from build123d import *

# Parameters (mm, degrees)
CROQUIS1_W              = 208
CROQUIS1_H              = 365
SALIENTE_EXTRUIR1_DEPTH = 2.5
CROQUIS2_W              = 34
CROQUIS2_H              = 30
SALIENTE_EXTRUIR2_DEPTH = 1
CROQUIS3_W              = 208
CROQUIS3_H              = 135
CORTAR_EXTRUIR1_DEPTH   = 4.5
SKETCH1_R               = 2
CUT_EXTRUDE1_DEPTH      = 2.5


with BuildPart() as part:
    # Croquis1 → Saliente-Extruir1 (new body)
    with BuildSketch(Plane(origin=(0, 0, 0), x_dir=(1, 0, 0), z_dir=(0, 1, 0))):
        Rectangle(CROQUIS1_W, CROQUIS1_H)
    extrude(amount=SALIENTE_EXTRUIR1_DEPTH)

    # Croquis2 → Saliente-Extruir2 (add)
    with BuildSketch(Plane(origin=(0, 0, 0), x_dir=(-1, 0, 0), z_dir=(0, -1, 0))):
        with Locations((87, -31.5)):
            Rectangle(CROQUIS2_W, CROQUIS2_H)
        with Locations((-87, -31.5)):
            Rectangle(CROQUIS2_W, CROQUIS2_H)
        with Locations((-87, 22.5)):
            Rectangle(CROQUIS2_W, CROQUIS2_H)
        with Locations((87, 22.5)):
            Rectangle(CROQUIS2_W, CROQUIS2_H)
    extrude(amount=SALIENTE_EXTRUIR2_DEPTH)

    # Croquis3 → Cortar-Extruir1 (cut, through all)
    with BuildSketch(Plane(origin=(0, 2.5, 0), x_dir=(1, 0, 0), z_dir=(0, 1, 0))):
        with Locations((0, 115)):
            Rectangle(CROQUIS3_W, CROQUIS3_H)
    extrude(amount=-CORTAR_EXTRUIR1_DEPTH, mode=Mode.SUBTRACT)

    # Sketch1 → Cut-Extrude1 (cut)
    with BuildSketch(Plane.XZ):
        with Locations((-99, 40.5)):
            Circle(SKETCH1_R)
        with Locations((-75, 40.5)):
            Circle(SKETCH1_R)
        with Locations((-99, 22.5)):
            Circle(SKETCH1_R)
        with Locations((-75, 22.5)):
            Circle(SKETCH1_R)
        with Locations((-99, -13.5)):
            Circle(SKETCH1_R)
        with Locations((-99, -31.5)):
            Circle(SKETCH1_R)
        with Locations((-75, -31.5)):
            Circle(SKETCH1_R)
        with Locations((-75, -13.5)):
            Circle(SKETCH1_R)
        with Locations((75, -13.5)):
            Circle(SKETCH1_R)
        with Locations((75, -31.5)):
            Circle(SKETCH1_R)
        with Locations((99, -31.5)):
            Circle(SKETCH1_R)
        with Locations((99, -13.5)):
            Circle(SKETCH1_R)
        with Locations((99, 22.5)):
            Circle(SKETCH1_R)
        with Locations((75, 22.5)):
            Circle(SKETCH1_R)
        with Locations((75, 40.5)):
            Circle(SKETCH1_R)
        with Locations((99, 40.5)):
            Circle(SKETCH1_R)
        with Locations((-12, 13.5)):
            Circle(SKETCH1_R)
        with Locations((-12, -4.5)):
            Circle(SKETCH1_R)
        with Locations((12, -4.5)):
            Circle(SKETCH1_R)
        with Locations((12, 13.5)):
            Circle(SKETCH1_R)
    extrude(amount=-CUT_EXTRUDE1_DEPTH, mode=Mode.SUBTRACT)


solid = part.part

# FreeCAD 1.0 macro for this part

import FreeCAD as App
import Part
import Sketcher
from FreeCAD import Vector

doc = App.newDocument("Part")
body = doc.addObject("PartDesign::Body", "Body")

# Sketch on XZ plane
sketch1 = body.newObject("Sketcher::SketchObject", "Sketch")
sketch1.AttachmentSupport = (doc.getObject("XZ_Plane"), [""])
sketch1.MapMode = "FlatFace"
sketch1.addGeometry([
    Part.LineSegment(Vector(-104, -182, 0), Vector(-104, 182, 0)),
    Part.LineSegment(Vector(-104, 182, 0), Vector(104, 182, 0)),
    Part.LineSegment(Vector(104, 182, 0), Vector(104, -182, 0)),
    Part.LineSegment(Vector(104, -182, 0), Vector(-104, -182, 0)),
], False)
sketch1.addConstraint([
    Sketcher.Constraint("Coincident", 0, 2, 1, 1),
    Sketcher.Constraint("Coincident", 1, 2, 2, 1),
    Sketcher.Constraint("Coincident", 2, 2, 3, 1),
    Sketcher.Constraint("Coincident", 3, 2, 0, 1),
    Sketcher.Constraint("Vertical", 0),
    Sketcher.Constraint("Horizontal", 1),
    Sketcher.Constraint("Vertical", 2),
    Sketcher.Constraint("Horizontal", 3),
    Sketcher.Constraint("Symmetric", 0, 2, 2, 2, -1, 1),
    Sketcher.Constraint("DistanceX", 1, 1, 1, 2, 208.0),
    Sketcher.Constraint("DistanceY", 0, 1, 0, 2, 365.0),
])
pad1 = body.newObject("PartDesign::Pad", "Pad")
pad1.Profile = sketch1
pad1.Length = 2.5
pad1.Reversed = True

# Sketch on XZ plane
sketch2 = body.newObject("Sketcher::SketchObject", "Sketch001")
sketch2.AttachmentSupport = (doc.getObject("XZ_Plane"), [""])
sketch2.MapMode = "FlatFace"
sketch2.addGeometry([
    Part.LineSegment(Vector(-70, 16, 0), Vector(-70, 46, 0)),  # 0
    Part.LineSegment(Vector(-70, 46, 0), Vector(-104, 46, 0)),  # 1
    Part.LineSegment(Vector(-104, 46, 0), Vector(-104, 16, 0)),  # 2
    Part.LineSegment(Vector(-104, 16, 0), Vector(-70, 16, 0)),  # 3
    Part.LineSegment(Vector(104, 16, 0), Vector(104, 46, 0)),  # 4
    Part.LineSegment(Vector(104, 46, 0), Vector(70, 46, 0)),  # 5
    Part.LineSegment(Vector(70, 46, 0), Vector(70, 16, 0)),  # 6
    Part.LineSegment(Vector(70, 16, 0), Vector(104, 16, 0)),  # 7
    Part.LineSegment(Vector(104, -38, 0), Vector(104, -8, 0)),  # 8
    Part.LineSegment(Vector(104, -8, 0), Vector(70, -8, 0)),  # 9
    Part.LineSegment(Vector(70, -8, 0), Vector(70, -38, 0)),  # 10
    Part.LineSegment(Vector(70, -38, 0), Vector(104, -38, 0)),  # 11
    Part.LineSegment(Vector(-70, -38, 0), Vector(-70, -8, 0)),  # 12
    Part.LineSegment(Vector(-70, -8, 0), Vector(-104, -8, 0)),  # 13
    Part.LineSegment(Vector(-104, -8, 0), Vector(-104, -38, 0)),  # 14
    Part.LineSegment(Vector(-104, -38, 0), Vector(-70, -38, 0)),  # 15
], False)
sketch2.addConstraint([
    Sketcher.Constraint("Coincident", 0, 2, 1, 1),
    Sketcher.Constraint("Coincident", 1, 2, 2, 1),
    Sketcher.Constraint("Coincident", 2, 2, 3, 1),
    Sketcher.Constraint("Coincident", 3, 2, 0, 1),
    Sketcher.Constraint("Coincident", 4, 2, 5, 1),
    Sketcher.Constraint("Coincident", 5, 2, 6, 1),
    Sketcher.Constraint("Coincident", 6, 2, 7, 1),
    Sketcher.Constraint("Coincident", 7, 2, 4, 1),
    Sketcher.Constraint("Coincident", 8, 2, 9, 1),
    Sketcher.Constraint("Coincident", 9, 2, 10, 1),
    Sketcher.Constraint("Coincident", 10, 2, 11, 1),
    Sketcher.Constraint("Coincident", 11, 2, 8, 1),
    Sketcher.Constraint("Coincident", 12, 2, 13, 1),
    Sketcher.Constraint("Coincident", 13, 2, 14, 1),
    Sketcher.Constraint("Coincident", 14, 2, 15, 1),
    Sketcher.Constraint("Coincident", 15, 2, 12, 1),
    Sketcher.Constraint("Vertical", 0),
    Sketcher.Constraint("Horizontal", 1),
    Sketcher.Constraint("Vertical", 2),
    Sketcher.Constraint("Horizontal", 3),
    Sketcher.Constraint("Vertical", 4),
    Sketcher.Constraint("Horizontal", 5),
    Sketcher.Constraint("Vertical", 6),
    Sketcher.Constraint("Horizontal", 7),
    Sketcher.Constraint("Vertical", 8),
    Sketcher.Constraint("Horizontal", 9),
    Sketcher.Constraint("Vertical", 10),
    Sketcher.Constraint("Horizontal", 11),
    Sketcher.Constraint("Vertical", 12),
    Sketcher.Constraint("Horizontal", 13),
    Sketcher.Constraint("Vertical", 14),
    Sketcher.Constraint("Horizontal", 15),
    Sketcher.Constraint("Symmetric", 1, 2, 4, 2, -2),
    Sketcher.Constraint("Symmetric", 3, 2, 6, 2, -2),
    Sketcher.Constraint("Symmetric", 9, 2, 12, 2, -2),
    Sketcher.Constraint("Symmetric", 11, 2, 14, 2, -2),
    Sketcher.Constraint("Vertical", 7, 2, 8, 2),
    Sketcher.Constraint("Vertical", 6, 2, 9, 2),
    Sketcher.Constraint("Equal", 6, 8),
    Sketcher.Constraint("DistanceX", 1, 2, 1, 1, 34.0),
    Sketcher.Constraint("DistanceY", 0, 1, 0, 2, 30.0),
    Sketcher.Constraint("DistanceX", 0, 2, -1, 1, 70.0),
    Sketcher.Constraint("DistanceY", 8, 2, 7, 2, 24.0),
    Sketcher.Constraint("DistanceY", -1, 1, 0, 2, 46.5),
])
pad2 = body.newObject("PartDesign::Pad", "Pad001")
pad2.Profile = sketch2
pad2.Length = 1

# Sketch on XZ plane
sketch3 = body.newObject("Sketcher::SketchObject", "Sketch002")
sketch3.AttachmentSupport = (doc.getObject("XZ_Plane"), [""])
sketch3.MapMode = "FlatFace"
sketch3.AttachmentOffset = App.Placement(Vector(0, 0, -2.5), App.Rotation())
sketch3.addGeometry([
    Part.LineSegment(Vector(-104, -182, 0), Vector(-104, -48, 0)),
    Part.LineSegment(Vector(-104, -48, 0), Vector(104, -48, 0)),
    Part.LineSegment(Vector(104, -48, 0), Vector(104, -182, 0)),
    Part.LineSegment(Vector(104, -182, 0), Vector(-104, -182, 0)),
], False)
sketch3.addConstraint([
    Sketcher.Constraint("Coincident", 0, 2, 1, 1),
    Sketcher.Constraint("Coincident", 1, 2, 2, 1),
    Sketcher.Constraint("Coincident", 2, 2, 3, 1),
    Sketcher.Constraint("Coincident", 3, 2, 0, 1),
    Sketcher.Constraint("Vertical", 0),
    Sketcher.Constraint("Horizontal", 1),
    Sketcher.Constraint("Vertical", 2),
    Sketcher.Constraint("Horizontal", 3),
    Sketcher.Constraint("DistanceX", 1, 1, 1, 2, 208.0),
    Sketcher.Constraint("DistanceY", 0, 1, 0, 2, 135.0),
    Sketcher.Constraint("DistanceX", 0, 2, -1, 1, 104.0),
    Sketcher.Constraint("DistanceY", 0, 2, -1, 1, 47.5),
])
pocket1 = body.newObject("PartDesign::Pocket", "Pocket")
pocket1.Profile = sketch3
pocket1.Type = "ThroughAll"
pocket1.Reversed = True

# Sketch on XZ plane
sketch4 = body.newObject("Sketcher::SketchObject", "Sketch003")
sketch4.AttachmentSupport = (doc.getObject("XZ_Plane"), [""])
sketch4.MapMode = "FlatFace"
sketch4.addGeometry([
    Part.Circle(Vector(-99, 40.5, 0), Vector(0, 0, 1), 2),  # 0
    Part.Circle(Vector(-75, 40.5, 0), Vector(0, 0, 1), 2),  # 1
    Part.Circle(Vector(-99, 22.5, 0), Vector(0, 0, 1), 2),  # 2
    Part.Circle(Vector(-75, 22.5, 0), Vector(0, 0, 1), 2),  # 3
    Part.Circle(Vector(-99, -13.5, 0), Vector(0, 0, 1), 2),  # 4
    Part.Circle(Vector(-99, -31.5, 0), Vector(0, 0, 1), 2),  # 5
    Part.Circle(Vector(-75, -31.5, 0), Vector(0, 0, 1), 2),  # 6
    Part.Circle(Vector(-75, -13.5, 0), Vector(0, 0, 1), 2),  # 7
    Part.Circle(Vector(75, -13.5, 0), Vector(0, 0, 1), 2),  # 8
    Part.Circle(Vector(75, -31.5, 0), Vector(0, 0, 1), 2),  # 9
    Part.Circle(Vector(99, -31.5, 0), Vector(0, 0, 1), 2),  # 10
    Part.Circle(Vector(99, -13.5, 0), Vector(0, 0, 1), 2),  # 11
    Part.Circle(Vector(99, 22.5, 0), Vector(0, 0, 1), 2),  # 12
    Part.Circle(Vector(75, 22.5, 0), Vector(0, 0, 1), 2),  # 13
    Part.Circle(Vector(75, 40.5, 0), Vector(0, 0, 1), 2),  # 14
    Part.Circle(Vector(99, 40.5, 0), Vector(0, 0, 1), 2),  # 15
    Part.Circle(Vector(-12, 13.5, 0), Vector(0, 0, 1), 2),  # 16
    Part.Circle(Vector(-12, -4.5, 0), Vector(0, 0, 1), 2),  # 17
    Part.Circle(Vector(12, -4.5, 0), Vector(0, 0, 1), 2),  # 18
    Part.Circle(Vector(12, 13.5, 0), Vector(0, 0, 1), 2),  # 19
], False)
sketch4.addConstraint([
    Sketcher.Constraint("Equal", 0, 1),
    Sketcher.Constraint("Equal", 1, 2),
    Sketcher.Constraint("Equal", 2, 3),
    Sketcher.Constraint("Equal", 3, 4),
    Sketcher.Constraint("Equal", 4, 5),
    Sketcher.Constraint("Equal", 5, 6),
    Sketcher.Constraint("Equal", 6, 7),
    Sketcher.Constraint("Equal", 7, 8),
    Sketcher.Constraint("Equal", 8, 9),
    Sketcher.Constraint("Equal", 9, 10),
    Sketcher.Constraint("Equal", 10, 11),
    Sketcher.Constraint("Equal", 11, 12),
    Sketcher.Constraint("Equal", 12, 13),
    Sketcher.Constraint("Equal", 13, 14),
    Sketcher.Constraint("Equal", 14, 15),
    Sketcher.Constraint("Equal", 15, 16),
    Sketcher.Constraint("Equal", 16, 17),
    Sketcher.Constraint("Equal", 17, 18),
    Sketcher.Constraint("Equal", 18, 19),
    Sketcher.Constraint("Symmetric", 7, 3, 8, 3, -2),
    Sketcher.Constraint("Symmetric", 6, 3, 9, 3, -2),
    Sketcher.Constraint("Symmetric", 5, 3, 10, 3, -2),
    Sketcher.Constraint("Symmetric", 4, 3, 11, 3, -2),
    Sketcher.Constraint("Symmetric", 2, 3, 12, 3, -2),
    Sketcher.Constraint("Symmetric", 3, 3, 13, 3, -2),
    Sketcher.Constraint("Symmetric", 1, 3, 14, 3, -2),
    Sketcher.Constraint("Symmetric", 0, 3, 15, 3, -2),
    Sketcher.Constraint("Symmetric", 17, 3, 18, 3, -2),
    Sketcher.Constraint("Symmetric", 16, 3, 19, 3, -2),
    Sketcher.Constraint("Horizontal", 0, 3, 1, 3),
    Sketcher.Constraint("Horizontal", 2, 3, 3, 3),
    Sketcher.Constraint("Horizontal", 5, 3, 6, 3),
    Sketcher.Constraint("Horizontal", 4, 3, 7, 3),
    Sketcher.Constraint("Vertical", 0, 3, 2, 3),
    Sketcher.Constraint("Vertical", 1, 3, 3, 3),
    Sketcher.Constraint("Vertical", 2, 3, 4, 3),
    Sketcher.Constraint("Vertical", 4, 3, 5, 3),
    Sketcher.Constraint("Vertical", 3, 3, 6, 3),
    Sketcher.Constraint("Vertical", 6, 3, 7, 3),
    Sketcher.Constraint("Vertical", 16, 3, 17, 3),
    Sketcher.Constraint("Diameter", 0, 4.0),
    Sketcher.Constraint("DistanceX", 0, 3, -1, 1, 99.0),
    Sketcher.Constraint("DistanceX", 1, 3, -1, 1, 75.0),
    Sketcher.Constraint("DistanceX", 16, 3, -1, 1, 12.0),
    Sketcher.Constraint("DistanceY", 2, 3, 0, 3, 18.0),
    Sketcher.Constraint("DistanceY", 4, 3, 2, 3, 36.0),
    Sketcher.Constraint("DistanceY", 5, 3, 4, 3, 18.0),
    Sketcher.Constraint("DistanceY", 16, 3, 3, 3, 9.0),
    Sketcher.Constraint("DistanceY", 17, 3, 16, 3, 18.0),
    Sketcher.Constraint("DistanceY", -1, 1, 0, 3, 40.5),
])
pocket2 = body.newObject("PartDesign::Pocket", "Pocket001")
pocket2.Profile = sketch4
pocket2.Length = 2.5

doc.recompute()
